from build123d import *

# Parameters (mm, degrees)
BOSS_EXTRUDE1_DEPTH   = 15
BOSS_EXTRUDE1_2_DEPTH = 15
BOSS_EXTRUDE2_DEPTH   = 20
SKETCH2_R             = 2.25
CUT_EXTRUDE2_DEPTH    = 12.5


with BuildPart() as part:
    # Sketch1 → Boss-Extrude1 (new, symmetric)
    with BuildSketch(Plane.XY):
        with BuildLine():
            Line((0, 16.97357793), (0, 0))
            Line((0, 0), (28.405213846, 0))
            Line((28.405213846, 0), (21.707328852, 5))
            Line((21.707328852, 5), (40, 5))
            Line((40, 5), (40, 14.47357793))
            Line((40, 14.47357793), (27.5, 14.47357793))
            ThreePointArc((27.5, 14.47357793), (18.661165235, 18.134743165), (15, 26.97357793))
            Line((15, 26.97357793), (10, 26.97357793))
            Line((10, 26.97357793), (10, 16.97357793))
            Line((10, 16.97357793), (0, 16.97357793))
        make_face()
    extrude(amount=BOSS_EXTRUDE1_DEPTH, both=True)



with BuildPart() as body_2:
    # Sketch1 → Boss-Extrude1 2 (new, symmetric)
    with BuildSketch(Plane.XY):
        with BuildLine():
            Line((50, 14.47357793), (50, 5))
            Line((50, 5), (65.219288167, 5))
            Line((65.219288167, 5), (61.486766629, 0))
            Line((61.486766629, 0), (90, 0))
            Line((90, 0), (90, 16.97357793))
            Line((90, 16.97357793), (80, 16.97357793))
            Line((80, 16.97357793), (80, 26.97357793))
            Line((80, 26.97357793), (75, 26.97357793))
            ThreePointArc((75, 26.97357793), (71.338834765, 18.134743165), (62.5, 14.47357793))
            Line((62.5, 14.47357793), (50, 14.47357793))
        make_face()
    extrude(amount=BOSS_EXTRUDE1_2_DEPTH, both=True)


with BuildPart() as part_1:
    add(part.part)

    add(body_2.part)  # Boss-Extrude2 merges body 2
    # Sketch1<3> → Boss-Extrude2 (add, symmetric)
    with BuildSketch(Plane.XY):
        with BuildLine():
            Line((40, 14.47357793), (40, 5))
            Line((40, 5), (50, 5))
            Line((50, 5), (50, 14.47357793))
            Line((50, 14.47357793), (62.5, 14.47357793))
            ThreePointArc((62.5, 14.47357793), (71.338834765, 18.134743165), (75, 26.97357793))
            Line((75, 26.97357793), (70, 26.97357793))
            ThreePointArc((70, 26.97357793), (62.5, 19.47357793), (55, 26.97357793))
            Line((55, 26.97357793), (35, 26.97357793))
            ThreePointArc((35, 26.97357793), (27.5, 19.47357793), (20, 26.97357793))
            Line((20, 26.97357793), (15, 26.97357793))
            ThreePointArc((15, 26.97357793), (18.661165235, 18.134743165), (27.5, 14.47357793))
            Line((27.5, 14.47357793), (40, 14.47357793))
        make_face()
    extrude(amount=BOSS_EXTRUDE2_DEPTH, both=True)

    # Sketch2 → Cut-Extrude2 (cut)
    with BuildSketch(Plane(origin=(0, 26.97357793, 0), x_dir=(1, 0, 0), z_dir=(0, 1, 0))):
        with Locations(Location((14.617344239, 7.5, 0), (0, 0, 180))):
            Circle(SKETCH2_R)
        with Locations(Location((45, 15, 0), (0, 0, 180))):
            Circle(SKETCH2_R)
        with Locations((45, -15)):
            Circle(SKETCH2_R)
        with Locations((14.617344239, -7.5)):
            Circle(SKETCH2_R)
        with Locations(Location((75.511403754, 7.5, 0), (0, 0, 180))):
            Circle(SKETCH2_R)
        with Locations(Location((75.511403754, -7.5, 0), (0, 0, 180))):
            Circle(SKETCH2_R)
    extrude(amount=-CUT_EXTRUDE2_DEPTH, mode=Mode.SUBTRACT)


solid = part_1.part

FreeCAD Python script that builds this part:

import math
import FreeCAD as App
import Part
import Sketcher
Q = App.Units.Quantity

doc = App.newDocument("Part")
body = doc.addObject("PartDesign::Body", "Body")

# Sketch on XY plane
sketch1 = doc.addObject("Sketcher::SketchObject", "Sketch")
body.addObject(sketch1)
sketch1.AttachmentSupport = (doc.XY_Plane, [""])
sketch1.MapMode = "FlatFace"
sketch1.addGeometry(Part.LineSegment(App.Vector(0, 17, 0), App.Vector(0, 0, 0)), False)
sketch1.addGeometry(Part.LineSegment(App.Vector(0, 0, 0), App.Vector(28, 0, 0)), False)
sketch1.addGeometry(Part.LineSegment(App.Vector(28, 0, 0), App.Vector(22, 5, 0)), False)
sketch1.addGeometry(Part.LineSegment(App.Vector(22, 5, 0), App.Vector(40, 5, 0)), False)
sketch1.addGeometry(Part.LineSegment(App.Vector(40, 5, 0), App.Vector(40, 14, 0)), False)
sketch1.addGeometry(Part.LineSegment(App.Vector(40, 14, 0), App.Vector(28, 14, 0)), False)
sketch1.addGeometry(Part.ArcOfCircle(Part.Circle(App.Vector(27, 27, 0), App.Vector(0, 0, 1), 12), math.radians(180), math.radians(270)), False)
sketch1.addGeometry(Part.LineSegment(App.Vector(15, 27, 0), App.Vector(10, 27, 0)), False)
sketch1.addGeometry(Part.LineSegment(App.Vector(10, 27, 0), App.Vector(10, 17, 0)), False)
sketch1.addGeometry(Part.LineSegment(App.Vector(10, 17, 0), App.Vector(0, 17, 0)), False)
sketch1.addConstraint(Sketcher.Constraint("Coincident", 0, 2, 1, 1))
sketch1.addConstraint(Sketcher.Constraint("Coincident", 1, 2, 2, 1))
sketch1.addConstraint(Sketcher.Constraint("Coincident", 2, 2, 3, 1))
sketch1.addConstraint(Sketcher.Constraint("Coincident", 3, 2, 4, 1))
sketch1.addConstraint(Sketcher.Constraint("Coincident", 4, 2, 5, 1))
sketch1.addConstraint(Sketcher.Constraint("Tangent", 5, 2, 6, 2))
sketch1.addConstraint(Sketcher.Constraint("Coincident", 6, 1, 7, 1))
sketch1.addConstraint(Sketcher.Constraint("Coincident", 7, 2, 8, 1))
sketch1.addConstraint(Sketcher.Constraint("Coincident", 8, 2, 9, 1))
sketch1.addConstraint(Sketcher.Constraint("Coincident", 9, 2, 0, 1))
sketch1.addConstraint(Sketcher.Constraint("Vertical", 0))
sketch1.addConstraint(Sketcher.Constraint("Horizontal", 1))
sketch1.addConstraint(Sketcher.Constraint("Horizontal", 3))
sketch1.addConstraint(Sketcher.Constraint("Vertical", 4))
sketch1.addConstraint(Sketcher.Constraint("Horizontal", 5))
sketch1.addConstraint(Sketcher.Constraint("Horizontal", 7))
sketch1.addConstraint(Sketcher.Constraint("Vertical", 8))
sketch1.addConstraint(Sketcher.Constraint("Horizontal", 9))
sketch1.addConstraint(Sketcher.Constraint("Coincident", 0, 2, -1, 1))
sketch1.addConstraint(Sketcher.Constraint("Equal", 9, 8))
sketch1.addConstraint(Sketcher.Constraint("Radius", 6, Q("12.5 mm")))
sketch1.addConstraint(Sketcher.Constraint("DistanceX", 7, 2, 7, 1, Q("5 mm")))
sketch1.addConstraint(Sketcher.Constraint("DistanceX", 9, 2, 9, 1, Q("10 mm")))
sketch1.addConstraint(Sketcher.Constraint("DistanceX", 5, 2, 5, 1, Q("12.5 mm")))
sketch1.addConstraint(Sketcher.Constraint("DistanceY", -1, 1, 2, 2, Q("5 mm")))
sketch1.addConstraint(Sketcher.Constraint("DistanceY", 5, 2, 6, 1, Q("12.5 mm")))
sketch1.addConstraint(Sketcher.Constraint("DistanceX", 3, 1, 3, 2, Q("18.292671 mm")))
sketch1.addConstraint(Sketcher.Constraint("Distance", 2, Q("8.358329 mm")))
sketch1.addConstraint(Sketcher.Constraint("DistanceY", 0, 2, 0, 1, Q("16.973578 mm")))
pad1 = doc.addObject("PartDesign::Pad", "Pad")
body.addObject(pad1)
pad1.Profile = sketch1
pad1.Length = 30
pad1.Midplane = True
body2 = doc.addObject("PartDesign::Body", "Body001")

# Sketch on XY plane
sketch2 = doc.addObject("Sketcher::SketchObject", "Sketch001")
body2.addObject(sketch2)
sketch2.AttachmentSupport = (doc.getObject("XY_Plane001"), [""])
sketch2.MapMode = "FlatFace"
sketch2.addGeometry(Part.LineSegment(App.Vector(50, 14, 0), App.Vector(50, 5, 0)), False)
sketch2.addGeometry(Part.LineSegment(App.Vector(50, 5, 0), App.Vector(65, 5, 0)), False)
sketch2.addGeometry(Part.LineSegment(App.Vector(65, 5, 0), App.Vector(61, 0, 0)), False)
sketch2.addGeometry(Part.LineSegment(App.Vector(61, 0, 0), App.Vector(90, 0, 0)), False)
sketch2.addGeometry(Part.LineSegment(App.Vector(90, 0, 0), App.Vector(90, 17, 0)), False)
sketch2.addGeometry(Part.LineSegment(App.Vector(90, 17, 0), App.Vector(80, 17, 0)), False)
sketch2.addGeometry(Part.LineSegment(App.Vector(80, 17, 0), App.Vector(80, 27, 0)), False)
sketch2.addGeometry(Part.LineSegment(App.Vector(80, 27, 0), App.Vector(75, 27, 0)), False)
sketch2.addGeometry(Part.ArcOfCircle(Part.Circle(App.Vector(63, 27, 0), App.Vector(0, 0, 1), 12), math.radians(-90), math.radians(0)), False)
sketch2.addGeometry(Part.LineSegment(App.Vector(62, 14, 0), App.Vector(50, 14, 0)), False)
sketch2.addConstraint(Sketcher.Constraint("Coincident", 0, 2, 1, 1))
sketch2.addConstraint(Sketcher.Constraint("Coincident", 1, 2, 2, 1))
sketch2.addConstraint(Sketcher.Constraint("Coincident", 2, 2, 3, 1))
sketch2.addConstraint(Sketcher.Constraint("Coincident", 3, 2, 4, 1))
sketch2.addConstraint(Sketcher.Constraint("Coincident", 4, 2, 5, 1))
sketch2.addConstraint(Sketcher.Constraint("Coincident", 5, 2, 6, 1))
sketch2.addConstraint(Sketcher.Constraint("Coincident", 6, 2, 7, 1))
sketch2.addConstraint(Sketcher.Constraint("Coincident", 7, 2, 8, 2))
sketch2.addConstraint(Sketcher.Constraint("Tangent", 8, 1, 9, 1))
sketch2.addConstraint(Sketcher.Constraint("Coincident", 9, 2, 0, 1))
sketch2.addConstraint(Sketcher.Constraint("Vertical", 0))
sketch2.addConstraint(Sketcher.Constraint("Horizontal", 1))
sketch2.addConstraint(Sketcher.Constraint("Horizontal", 3))
sketch2.addConstraint(Sketcher.Constraint("Vertical", 4))
sketch2.addConstraint(Sketcher.Constraint("Horizontal", 5))
sketch2.addConstraint(Sketcher.Constraint("Vertical", 6))
sketch2.addConstraint(Sketcher.Constraint("Horizontal", 7))
sketch2.addConstraint(Sketcher.Constraint("Horizontal", 9))
sketch2.addConstraint(Sketcher.Constraint("PointOnObject", 2, 2, -1))
sketch2.addConstraint(Sketcher.Constraint("Horizontal", 8, 3, 6, 2))
sketch2.addConstraint(Sketcher.Constraint("Equal", 5, 6))
sketch2.addConstraint(Sketcher.Constraint("Radius", 8, Q("12.5 mm")))
sketch2.addConstraint(Sketcher.Constraint("DistanceX", 5, 2, 5, 1, Q("10 mm")))
sketch2.addConstraint(Sketcher.Constraint("DistanceX", 7, 2, 7, 1, Q("5 mm")))
sketch2.addConstraint(Sketcher.Constraint("DistanceX", 9, 2, 9, 1, Q("12.5 mm")))
sketch2.addConstraint(Sketcher.Constraint("DistanceX", -1, 1, 0, 2, Q("50 mm")))
sketch2.addConstraint(Sketcher.Constraint("DistanceY", -1, 1, 0, 2, Q("5 mm")))
sketch2.addConstraint(Sketcher.Constraint("DistanceX", 1, 1, 1, 2, Q("15.219288 mm")))
sketch2.addConstraint(Sketcher.Constraint("Distance", 2, Q("6.239529 mm")))
sketch2.addConstraint(Sketcher.Constraint("DistanceY", 0, 2, 0, 1, Q("9.473578 mm")))
pad2 = doc.addObject("PartDesign::Pad", "Pad001")
body2.addObject(pad2)
pad2.Profile = sketch2
pad2.Length = 30
pad2.Midplane = True
body.AllowCompound = True
doc.recompute()

boolean = doc.addObject("PartDesign::Boolean", "Boolean")
body.addObject(boolean)
boolean.Type = "Fuse"
boolean.addObjects([body2])

# Sketch on XY plane
sketch3 = doc.addObject("Sketcher::SketchObject", "Sketch002")
body.addObject(sketch3)
sketch3.AttachmentSupport = (doc.XY_Plane, [""])
sketch3.MapMode = "FlatFace"
sketch3.addGeometry(Part.LineSegment(App.Vector(40, 14, 0), App.Vector(40, 5, 0)), False)
sketch3.addGeometry(Part.LineSegment(App.Vector(40, 5, 0), App.Vector(50, 5, 0)), False)
sketch3.addGeometry(Part.LineSegment(App.Vector(50, 5, 0), App.Vector(50, 14, 0)), False)
sketch3.addGeometry(Part.LineSegment(App.Vector(50, 14, 0), App.Vector(62, 14, 0)), False)
sketch3.addGeometry(Part.ArcOfCircle(Part.Circle(App.Vector(63, 27, 0), App.Vector(0, 0, 1), 12), math.radians(-90), math.radians(0)), False)
sketch3.addGeometry(Part.LineSegment(App.Vector(75, 27, 0), App.Vector(70, 27, 0)), False)
sketch3.addGeometry(Part.ArcOfCircle(Part.Circle(App.Vector(62, 27, 0), App.Vector(0, 0, 1), 8), math.radians(180), math.radians(360)), False)
sketch3.addGeometry(Part.LineSegment(App.Vector(55, 27, 0), App.Vector(35, 27, 0)), False)
sketch3.addGeometry(Part.ArcOfCircle(Part.Circle(App.Vector(28, 27, 0), App.Vector(0, 0, 1), 8), math.radians(180), math.radians(360)), False)
sketch3.addGeometry(Part.LineSegment(App.Vector(20, 27, 0), App.Vector(15, 27, 0)), False)
sketch3.addGeometry(Part.ArcOfCircle(Part.Circle(App.Vector(27, 27, 0), App.Vector(0, 0, 1), 12), math.radians(180), math.radians(270)), False)
sketch3.addGeometry(Part.LineSegment(App.Vector(28, 14, 0), App.Vector(40, 14, 0)), False)
sketch3.addConstraint(Sketcher.Constraint("Coincident", 0, 2, 1, 1))
sketch3.addConstraint(Sketcher.Constraint("Coincident", 1, 2, 2, 1))
sketch3.addConstraint(Sketcher.Constraint("Coincident", 2, 2, 3, 1))
sketch3.addConstraint(Sketcher.Constraint("Tangent", 3, 2, 4, 1))
sketch3.addConstraint(Sketcher.Constraint("Coincident", 4, 2, 5, 1))
sketch3.addConstraint(Sketcher.Constraint("Coincident", 5, 2, 6, 2))
sketch3.addConstraint(Sketcher.Constraint("Coincident", 6, 1, 7, 1))
sketch3.addConstraint(Sketcher.Constraint("Coincident", 7, 2, 8, 2))
sketch3.addConstraint(Sketcher.Constraint("Coincident", 8, 1, 9, 1))
sketch3.addConstraint(Sketcher.Constraint("Coincident", 9, 2, 10, 1))
sketch3.addConstraint(Sketcher.Constraint("Tangent", 10, 2, 11, 1))
sketch3.addConstraint(Sketcher.Constraint("Coincident", 11, 2, 0, 1))
sketch3.addConstraint(Sketcher.Constraint("Vertical", 0))
sketch3.addConstraint(Sketcher.Constraint("Horizontal", 1))
sketch3.addConstraint(Sketcher.Constraint("Vertical", 2))
sketch3.addConstraint(Sketcher.Constraint("Horizontal", 3))
sketch3.addConstraint(Sketcher.Constraint("Horizontal", 5))
sketch3.addConstraint(Sketcher.Constraint("Horizontal", 7))
sketch3.addConstraint(Sketcher.Constraint("Horizontal", 9))
sketch3.addConstraint(Sketcher.Constraint("Horizontal", 11))
sketch3.addConstraint(Sketcher.Constraint("Coincident", 6, 3, 4, 3))
sketch3.addConstraint(Sketcher.Constraint("Coincident", 10, 3, 8, 3))
sketch3.addConstraint(Sketcher.Constraint("Equal", 6, 8))
sketch3.addConstraint(Sketcher.Constraint("Equal", 4, 10))
sketch3.addConstraint(Sketcher.Constraint("Horizontal", 6, 3, 8, 3))
sketch3.addConstraint(Sketcher.Constraint("Horizontal", 10, 3, 4, 2))
sketch3.addConstraint(Sketcher.Constraint("Horizontal", 5, 2, 6, 1))
sketch3.addConstraint(Sketcher.Constraint("Horizontal", 7, 2, 8, 1))
sketch3.addConstraint(Sketcher.Constraint("Equal", 3, 11))
sketch3.addConstraint(Sketcher.Constraint("Radius", 4, Q("12.5 mm")))
sketch3.addConstraint(Sketcher.Constraint("Radius", 6, Q("7.5 mm")))
sketch3.addConstraint(Sketcher.Constraint("DistanceX", 1, 1, 1, 2, Q("10 mm")))
sketch3.addConstraint(Sketcher.Constraint("DistanceX", 7, 2, 7, 1, Q("20 mm")))
sketch3.addConstraint(Sketcher.Constraint("DistanceX", -1, 1, 0, 2, Q("40 mm")))
sketch3.addConstraint(Sketcher.Constraint("DistanceY", -1, 1, 0, 2, Q("5 mm")))
sketch3.addConstraint(Sketcher.Constraint("DistanceY", 0, 2, 0, 1, Q("9.473578 mm")))
pad3 = doc.addObject("PartDesign::Pad", "Pad002")
body.addObject(pad3)
pad3.Profile = sketch3
pad3.Length = 40
pad3.Midplane = True

# Sketch on XZ plane
sketch4 = doc.addObject("Sketcher::SketchObject", "Sketch003")
body.addObject(sketch4)
sketch4.AttachmentSupport = (doc.XZ_Plane, [""])
sketch4.MapMode = "FlatFace"
sketch4.AttachmentOffset = App.Placement(App.Vector(0, 0, -26.973578), App.Rotation())
sketch4.addGeometry(Part.Circle(App.Vector(14.6, -7.5, 0), App.Vector(0, 0, 1), 2.2), False)
sketch4.addGeometry(Part.Circle(App.Vector(45, -15, 0), App.Vector(0, 0, 1), 2.2), False)
sketch4.addGeometry(Part.Circle(App.Vector(45, 15, 0), App.Vector(0, 0, 1), 2.2), False)
sketch4.addGeometry(Part.Circle(App.Vector(14.6, 7.5, 0), App.Vector(0, 0, 1), 2.2), False)
sketch4.addGeometry(Part.Circle(App.Vector(75.5, -7.5, 0), App.Vector(0, 0, 1), 2.2), False)
sketch4.addGeometry(Part.Circle(App.Vector(75.5, 7.5, 0), App.Vector(0, 0, 1), 2.2), False)
sketch4.addConstraint(Sketcher.Constraint("Equal", 0, 1))
sketch4.addConstraint(Sketcher.Constraint("Equal", 1, 2))
sketch4.addConstraint(Sketcher.Constraint("Equal", 2, 3))
sketch4.addConstraint(Sketcher.Constraint("Equal", 3, 4))
sketch4.addConstraint(Sketcher.Constraint("Equal", 4, 5))
sketch4.addConstraint(Sketcher.Constraint("Symmetric", 1, 3, 2, 3, -1))
sketch4.addConstraint(Sketcher.Constraint("Symmetric", 0, 3, 3, 3, -1))
sketch4.addConstraint(Sketcher.Constraint("Symmetric", 4, 3, 5, 3, -1))
sketch4.addConstraint(Sketcher.Constraint("Horizontal", 0, 3, 4, 3))
sketch4.addConstraint(Sketcher.Constraint("Diameter", 0, Q("4.5 mm")))
sketch4.addConstraint(Sketcher.Constraint("DistanceX", -1, 1, 1, 3, Q("45 mm")))
sketch4.addConstraint(Sketcher.Constraint("DistanceY", 1, 3, -1, 1, Q("15 mm")))
sketch4.addConstraint(Sketcher.Constraint("DistanceY", 0, 3, 3, 3, Q("15 mm")))
sketch4.addConstraint(Sketcher.Constraint("DistanceX", 0, 3, 4, 3, Q("60.89406 mm")))
sketch4.addConstraint(Sketcher.Constraint("DistanceX", -1, 1, 0, 3, Q("14.617344 mm")))
pocket1 = doc.addObject("PartDesign::Pocket", "Pocket")
body.addObject(pocket1)
pocket1.Profile = sketch4
pocket1.Length = 12.5
pocket1.Reversed = True

doc.recompute()
